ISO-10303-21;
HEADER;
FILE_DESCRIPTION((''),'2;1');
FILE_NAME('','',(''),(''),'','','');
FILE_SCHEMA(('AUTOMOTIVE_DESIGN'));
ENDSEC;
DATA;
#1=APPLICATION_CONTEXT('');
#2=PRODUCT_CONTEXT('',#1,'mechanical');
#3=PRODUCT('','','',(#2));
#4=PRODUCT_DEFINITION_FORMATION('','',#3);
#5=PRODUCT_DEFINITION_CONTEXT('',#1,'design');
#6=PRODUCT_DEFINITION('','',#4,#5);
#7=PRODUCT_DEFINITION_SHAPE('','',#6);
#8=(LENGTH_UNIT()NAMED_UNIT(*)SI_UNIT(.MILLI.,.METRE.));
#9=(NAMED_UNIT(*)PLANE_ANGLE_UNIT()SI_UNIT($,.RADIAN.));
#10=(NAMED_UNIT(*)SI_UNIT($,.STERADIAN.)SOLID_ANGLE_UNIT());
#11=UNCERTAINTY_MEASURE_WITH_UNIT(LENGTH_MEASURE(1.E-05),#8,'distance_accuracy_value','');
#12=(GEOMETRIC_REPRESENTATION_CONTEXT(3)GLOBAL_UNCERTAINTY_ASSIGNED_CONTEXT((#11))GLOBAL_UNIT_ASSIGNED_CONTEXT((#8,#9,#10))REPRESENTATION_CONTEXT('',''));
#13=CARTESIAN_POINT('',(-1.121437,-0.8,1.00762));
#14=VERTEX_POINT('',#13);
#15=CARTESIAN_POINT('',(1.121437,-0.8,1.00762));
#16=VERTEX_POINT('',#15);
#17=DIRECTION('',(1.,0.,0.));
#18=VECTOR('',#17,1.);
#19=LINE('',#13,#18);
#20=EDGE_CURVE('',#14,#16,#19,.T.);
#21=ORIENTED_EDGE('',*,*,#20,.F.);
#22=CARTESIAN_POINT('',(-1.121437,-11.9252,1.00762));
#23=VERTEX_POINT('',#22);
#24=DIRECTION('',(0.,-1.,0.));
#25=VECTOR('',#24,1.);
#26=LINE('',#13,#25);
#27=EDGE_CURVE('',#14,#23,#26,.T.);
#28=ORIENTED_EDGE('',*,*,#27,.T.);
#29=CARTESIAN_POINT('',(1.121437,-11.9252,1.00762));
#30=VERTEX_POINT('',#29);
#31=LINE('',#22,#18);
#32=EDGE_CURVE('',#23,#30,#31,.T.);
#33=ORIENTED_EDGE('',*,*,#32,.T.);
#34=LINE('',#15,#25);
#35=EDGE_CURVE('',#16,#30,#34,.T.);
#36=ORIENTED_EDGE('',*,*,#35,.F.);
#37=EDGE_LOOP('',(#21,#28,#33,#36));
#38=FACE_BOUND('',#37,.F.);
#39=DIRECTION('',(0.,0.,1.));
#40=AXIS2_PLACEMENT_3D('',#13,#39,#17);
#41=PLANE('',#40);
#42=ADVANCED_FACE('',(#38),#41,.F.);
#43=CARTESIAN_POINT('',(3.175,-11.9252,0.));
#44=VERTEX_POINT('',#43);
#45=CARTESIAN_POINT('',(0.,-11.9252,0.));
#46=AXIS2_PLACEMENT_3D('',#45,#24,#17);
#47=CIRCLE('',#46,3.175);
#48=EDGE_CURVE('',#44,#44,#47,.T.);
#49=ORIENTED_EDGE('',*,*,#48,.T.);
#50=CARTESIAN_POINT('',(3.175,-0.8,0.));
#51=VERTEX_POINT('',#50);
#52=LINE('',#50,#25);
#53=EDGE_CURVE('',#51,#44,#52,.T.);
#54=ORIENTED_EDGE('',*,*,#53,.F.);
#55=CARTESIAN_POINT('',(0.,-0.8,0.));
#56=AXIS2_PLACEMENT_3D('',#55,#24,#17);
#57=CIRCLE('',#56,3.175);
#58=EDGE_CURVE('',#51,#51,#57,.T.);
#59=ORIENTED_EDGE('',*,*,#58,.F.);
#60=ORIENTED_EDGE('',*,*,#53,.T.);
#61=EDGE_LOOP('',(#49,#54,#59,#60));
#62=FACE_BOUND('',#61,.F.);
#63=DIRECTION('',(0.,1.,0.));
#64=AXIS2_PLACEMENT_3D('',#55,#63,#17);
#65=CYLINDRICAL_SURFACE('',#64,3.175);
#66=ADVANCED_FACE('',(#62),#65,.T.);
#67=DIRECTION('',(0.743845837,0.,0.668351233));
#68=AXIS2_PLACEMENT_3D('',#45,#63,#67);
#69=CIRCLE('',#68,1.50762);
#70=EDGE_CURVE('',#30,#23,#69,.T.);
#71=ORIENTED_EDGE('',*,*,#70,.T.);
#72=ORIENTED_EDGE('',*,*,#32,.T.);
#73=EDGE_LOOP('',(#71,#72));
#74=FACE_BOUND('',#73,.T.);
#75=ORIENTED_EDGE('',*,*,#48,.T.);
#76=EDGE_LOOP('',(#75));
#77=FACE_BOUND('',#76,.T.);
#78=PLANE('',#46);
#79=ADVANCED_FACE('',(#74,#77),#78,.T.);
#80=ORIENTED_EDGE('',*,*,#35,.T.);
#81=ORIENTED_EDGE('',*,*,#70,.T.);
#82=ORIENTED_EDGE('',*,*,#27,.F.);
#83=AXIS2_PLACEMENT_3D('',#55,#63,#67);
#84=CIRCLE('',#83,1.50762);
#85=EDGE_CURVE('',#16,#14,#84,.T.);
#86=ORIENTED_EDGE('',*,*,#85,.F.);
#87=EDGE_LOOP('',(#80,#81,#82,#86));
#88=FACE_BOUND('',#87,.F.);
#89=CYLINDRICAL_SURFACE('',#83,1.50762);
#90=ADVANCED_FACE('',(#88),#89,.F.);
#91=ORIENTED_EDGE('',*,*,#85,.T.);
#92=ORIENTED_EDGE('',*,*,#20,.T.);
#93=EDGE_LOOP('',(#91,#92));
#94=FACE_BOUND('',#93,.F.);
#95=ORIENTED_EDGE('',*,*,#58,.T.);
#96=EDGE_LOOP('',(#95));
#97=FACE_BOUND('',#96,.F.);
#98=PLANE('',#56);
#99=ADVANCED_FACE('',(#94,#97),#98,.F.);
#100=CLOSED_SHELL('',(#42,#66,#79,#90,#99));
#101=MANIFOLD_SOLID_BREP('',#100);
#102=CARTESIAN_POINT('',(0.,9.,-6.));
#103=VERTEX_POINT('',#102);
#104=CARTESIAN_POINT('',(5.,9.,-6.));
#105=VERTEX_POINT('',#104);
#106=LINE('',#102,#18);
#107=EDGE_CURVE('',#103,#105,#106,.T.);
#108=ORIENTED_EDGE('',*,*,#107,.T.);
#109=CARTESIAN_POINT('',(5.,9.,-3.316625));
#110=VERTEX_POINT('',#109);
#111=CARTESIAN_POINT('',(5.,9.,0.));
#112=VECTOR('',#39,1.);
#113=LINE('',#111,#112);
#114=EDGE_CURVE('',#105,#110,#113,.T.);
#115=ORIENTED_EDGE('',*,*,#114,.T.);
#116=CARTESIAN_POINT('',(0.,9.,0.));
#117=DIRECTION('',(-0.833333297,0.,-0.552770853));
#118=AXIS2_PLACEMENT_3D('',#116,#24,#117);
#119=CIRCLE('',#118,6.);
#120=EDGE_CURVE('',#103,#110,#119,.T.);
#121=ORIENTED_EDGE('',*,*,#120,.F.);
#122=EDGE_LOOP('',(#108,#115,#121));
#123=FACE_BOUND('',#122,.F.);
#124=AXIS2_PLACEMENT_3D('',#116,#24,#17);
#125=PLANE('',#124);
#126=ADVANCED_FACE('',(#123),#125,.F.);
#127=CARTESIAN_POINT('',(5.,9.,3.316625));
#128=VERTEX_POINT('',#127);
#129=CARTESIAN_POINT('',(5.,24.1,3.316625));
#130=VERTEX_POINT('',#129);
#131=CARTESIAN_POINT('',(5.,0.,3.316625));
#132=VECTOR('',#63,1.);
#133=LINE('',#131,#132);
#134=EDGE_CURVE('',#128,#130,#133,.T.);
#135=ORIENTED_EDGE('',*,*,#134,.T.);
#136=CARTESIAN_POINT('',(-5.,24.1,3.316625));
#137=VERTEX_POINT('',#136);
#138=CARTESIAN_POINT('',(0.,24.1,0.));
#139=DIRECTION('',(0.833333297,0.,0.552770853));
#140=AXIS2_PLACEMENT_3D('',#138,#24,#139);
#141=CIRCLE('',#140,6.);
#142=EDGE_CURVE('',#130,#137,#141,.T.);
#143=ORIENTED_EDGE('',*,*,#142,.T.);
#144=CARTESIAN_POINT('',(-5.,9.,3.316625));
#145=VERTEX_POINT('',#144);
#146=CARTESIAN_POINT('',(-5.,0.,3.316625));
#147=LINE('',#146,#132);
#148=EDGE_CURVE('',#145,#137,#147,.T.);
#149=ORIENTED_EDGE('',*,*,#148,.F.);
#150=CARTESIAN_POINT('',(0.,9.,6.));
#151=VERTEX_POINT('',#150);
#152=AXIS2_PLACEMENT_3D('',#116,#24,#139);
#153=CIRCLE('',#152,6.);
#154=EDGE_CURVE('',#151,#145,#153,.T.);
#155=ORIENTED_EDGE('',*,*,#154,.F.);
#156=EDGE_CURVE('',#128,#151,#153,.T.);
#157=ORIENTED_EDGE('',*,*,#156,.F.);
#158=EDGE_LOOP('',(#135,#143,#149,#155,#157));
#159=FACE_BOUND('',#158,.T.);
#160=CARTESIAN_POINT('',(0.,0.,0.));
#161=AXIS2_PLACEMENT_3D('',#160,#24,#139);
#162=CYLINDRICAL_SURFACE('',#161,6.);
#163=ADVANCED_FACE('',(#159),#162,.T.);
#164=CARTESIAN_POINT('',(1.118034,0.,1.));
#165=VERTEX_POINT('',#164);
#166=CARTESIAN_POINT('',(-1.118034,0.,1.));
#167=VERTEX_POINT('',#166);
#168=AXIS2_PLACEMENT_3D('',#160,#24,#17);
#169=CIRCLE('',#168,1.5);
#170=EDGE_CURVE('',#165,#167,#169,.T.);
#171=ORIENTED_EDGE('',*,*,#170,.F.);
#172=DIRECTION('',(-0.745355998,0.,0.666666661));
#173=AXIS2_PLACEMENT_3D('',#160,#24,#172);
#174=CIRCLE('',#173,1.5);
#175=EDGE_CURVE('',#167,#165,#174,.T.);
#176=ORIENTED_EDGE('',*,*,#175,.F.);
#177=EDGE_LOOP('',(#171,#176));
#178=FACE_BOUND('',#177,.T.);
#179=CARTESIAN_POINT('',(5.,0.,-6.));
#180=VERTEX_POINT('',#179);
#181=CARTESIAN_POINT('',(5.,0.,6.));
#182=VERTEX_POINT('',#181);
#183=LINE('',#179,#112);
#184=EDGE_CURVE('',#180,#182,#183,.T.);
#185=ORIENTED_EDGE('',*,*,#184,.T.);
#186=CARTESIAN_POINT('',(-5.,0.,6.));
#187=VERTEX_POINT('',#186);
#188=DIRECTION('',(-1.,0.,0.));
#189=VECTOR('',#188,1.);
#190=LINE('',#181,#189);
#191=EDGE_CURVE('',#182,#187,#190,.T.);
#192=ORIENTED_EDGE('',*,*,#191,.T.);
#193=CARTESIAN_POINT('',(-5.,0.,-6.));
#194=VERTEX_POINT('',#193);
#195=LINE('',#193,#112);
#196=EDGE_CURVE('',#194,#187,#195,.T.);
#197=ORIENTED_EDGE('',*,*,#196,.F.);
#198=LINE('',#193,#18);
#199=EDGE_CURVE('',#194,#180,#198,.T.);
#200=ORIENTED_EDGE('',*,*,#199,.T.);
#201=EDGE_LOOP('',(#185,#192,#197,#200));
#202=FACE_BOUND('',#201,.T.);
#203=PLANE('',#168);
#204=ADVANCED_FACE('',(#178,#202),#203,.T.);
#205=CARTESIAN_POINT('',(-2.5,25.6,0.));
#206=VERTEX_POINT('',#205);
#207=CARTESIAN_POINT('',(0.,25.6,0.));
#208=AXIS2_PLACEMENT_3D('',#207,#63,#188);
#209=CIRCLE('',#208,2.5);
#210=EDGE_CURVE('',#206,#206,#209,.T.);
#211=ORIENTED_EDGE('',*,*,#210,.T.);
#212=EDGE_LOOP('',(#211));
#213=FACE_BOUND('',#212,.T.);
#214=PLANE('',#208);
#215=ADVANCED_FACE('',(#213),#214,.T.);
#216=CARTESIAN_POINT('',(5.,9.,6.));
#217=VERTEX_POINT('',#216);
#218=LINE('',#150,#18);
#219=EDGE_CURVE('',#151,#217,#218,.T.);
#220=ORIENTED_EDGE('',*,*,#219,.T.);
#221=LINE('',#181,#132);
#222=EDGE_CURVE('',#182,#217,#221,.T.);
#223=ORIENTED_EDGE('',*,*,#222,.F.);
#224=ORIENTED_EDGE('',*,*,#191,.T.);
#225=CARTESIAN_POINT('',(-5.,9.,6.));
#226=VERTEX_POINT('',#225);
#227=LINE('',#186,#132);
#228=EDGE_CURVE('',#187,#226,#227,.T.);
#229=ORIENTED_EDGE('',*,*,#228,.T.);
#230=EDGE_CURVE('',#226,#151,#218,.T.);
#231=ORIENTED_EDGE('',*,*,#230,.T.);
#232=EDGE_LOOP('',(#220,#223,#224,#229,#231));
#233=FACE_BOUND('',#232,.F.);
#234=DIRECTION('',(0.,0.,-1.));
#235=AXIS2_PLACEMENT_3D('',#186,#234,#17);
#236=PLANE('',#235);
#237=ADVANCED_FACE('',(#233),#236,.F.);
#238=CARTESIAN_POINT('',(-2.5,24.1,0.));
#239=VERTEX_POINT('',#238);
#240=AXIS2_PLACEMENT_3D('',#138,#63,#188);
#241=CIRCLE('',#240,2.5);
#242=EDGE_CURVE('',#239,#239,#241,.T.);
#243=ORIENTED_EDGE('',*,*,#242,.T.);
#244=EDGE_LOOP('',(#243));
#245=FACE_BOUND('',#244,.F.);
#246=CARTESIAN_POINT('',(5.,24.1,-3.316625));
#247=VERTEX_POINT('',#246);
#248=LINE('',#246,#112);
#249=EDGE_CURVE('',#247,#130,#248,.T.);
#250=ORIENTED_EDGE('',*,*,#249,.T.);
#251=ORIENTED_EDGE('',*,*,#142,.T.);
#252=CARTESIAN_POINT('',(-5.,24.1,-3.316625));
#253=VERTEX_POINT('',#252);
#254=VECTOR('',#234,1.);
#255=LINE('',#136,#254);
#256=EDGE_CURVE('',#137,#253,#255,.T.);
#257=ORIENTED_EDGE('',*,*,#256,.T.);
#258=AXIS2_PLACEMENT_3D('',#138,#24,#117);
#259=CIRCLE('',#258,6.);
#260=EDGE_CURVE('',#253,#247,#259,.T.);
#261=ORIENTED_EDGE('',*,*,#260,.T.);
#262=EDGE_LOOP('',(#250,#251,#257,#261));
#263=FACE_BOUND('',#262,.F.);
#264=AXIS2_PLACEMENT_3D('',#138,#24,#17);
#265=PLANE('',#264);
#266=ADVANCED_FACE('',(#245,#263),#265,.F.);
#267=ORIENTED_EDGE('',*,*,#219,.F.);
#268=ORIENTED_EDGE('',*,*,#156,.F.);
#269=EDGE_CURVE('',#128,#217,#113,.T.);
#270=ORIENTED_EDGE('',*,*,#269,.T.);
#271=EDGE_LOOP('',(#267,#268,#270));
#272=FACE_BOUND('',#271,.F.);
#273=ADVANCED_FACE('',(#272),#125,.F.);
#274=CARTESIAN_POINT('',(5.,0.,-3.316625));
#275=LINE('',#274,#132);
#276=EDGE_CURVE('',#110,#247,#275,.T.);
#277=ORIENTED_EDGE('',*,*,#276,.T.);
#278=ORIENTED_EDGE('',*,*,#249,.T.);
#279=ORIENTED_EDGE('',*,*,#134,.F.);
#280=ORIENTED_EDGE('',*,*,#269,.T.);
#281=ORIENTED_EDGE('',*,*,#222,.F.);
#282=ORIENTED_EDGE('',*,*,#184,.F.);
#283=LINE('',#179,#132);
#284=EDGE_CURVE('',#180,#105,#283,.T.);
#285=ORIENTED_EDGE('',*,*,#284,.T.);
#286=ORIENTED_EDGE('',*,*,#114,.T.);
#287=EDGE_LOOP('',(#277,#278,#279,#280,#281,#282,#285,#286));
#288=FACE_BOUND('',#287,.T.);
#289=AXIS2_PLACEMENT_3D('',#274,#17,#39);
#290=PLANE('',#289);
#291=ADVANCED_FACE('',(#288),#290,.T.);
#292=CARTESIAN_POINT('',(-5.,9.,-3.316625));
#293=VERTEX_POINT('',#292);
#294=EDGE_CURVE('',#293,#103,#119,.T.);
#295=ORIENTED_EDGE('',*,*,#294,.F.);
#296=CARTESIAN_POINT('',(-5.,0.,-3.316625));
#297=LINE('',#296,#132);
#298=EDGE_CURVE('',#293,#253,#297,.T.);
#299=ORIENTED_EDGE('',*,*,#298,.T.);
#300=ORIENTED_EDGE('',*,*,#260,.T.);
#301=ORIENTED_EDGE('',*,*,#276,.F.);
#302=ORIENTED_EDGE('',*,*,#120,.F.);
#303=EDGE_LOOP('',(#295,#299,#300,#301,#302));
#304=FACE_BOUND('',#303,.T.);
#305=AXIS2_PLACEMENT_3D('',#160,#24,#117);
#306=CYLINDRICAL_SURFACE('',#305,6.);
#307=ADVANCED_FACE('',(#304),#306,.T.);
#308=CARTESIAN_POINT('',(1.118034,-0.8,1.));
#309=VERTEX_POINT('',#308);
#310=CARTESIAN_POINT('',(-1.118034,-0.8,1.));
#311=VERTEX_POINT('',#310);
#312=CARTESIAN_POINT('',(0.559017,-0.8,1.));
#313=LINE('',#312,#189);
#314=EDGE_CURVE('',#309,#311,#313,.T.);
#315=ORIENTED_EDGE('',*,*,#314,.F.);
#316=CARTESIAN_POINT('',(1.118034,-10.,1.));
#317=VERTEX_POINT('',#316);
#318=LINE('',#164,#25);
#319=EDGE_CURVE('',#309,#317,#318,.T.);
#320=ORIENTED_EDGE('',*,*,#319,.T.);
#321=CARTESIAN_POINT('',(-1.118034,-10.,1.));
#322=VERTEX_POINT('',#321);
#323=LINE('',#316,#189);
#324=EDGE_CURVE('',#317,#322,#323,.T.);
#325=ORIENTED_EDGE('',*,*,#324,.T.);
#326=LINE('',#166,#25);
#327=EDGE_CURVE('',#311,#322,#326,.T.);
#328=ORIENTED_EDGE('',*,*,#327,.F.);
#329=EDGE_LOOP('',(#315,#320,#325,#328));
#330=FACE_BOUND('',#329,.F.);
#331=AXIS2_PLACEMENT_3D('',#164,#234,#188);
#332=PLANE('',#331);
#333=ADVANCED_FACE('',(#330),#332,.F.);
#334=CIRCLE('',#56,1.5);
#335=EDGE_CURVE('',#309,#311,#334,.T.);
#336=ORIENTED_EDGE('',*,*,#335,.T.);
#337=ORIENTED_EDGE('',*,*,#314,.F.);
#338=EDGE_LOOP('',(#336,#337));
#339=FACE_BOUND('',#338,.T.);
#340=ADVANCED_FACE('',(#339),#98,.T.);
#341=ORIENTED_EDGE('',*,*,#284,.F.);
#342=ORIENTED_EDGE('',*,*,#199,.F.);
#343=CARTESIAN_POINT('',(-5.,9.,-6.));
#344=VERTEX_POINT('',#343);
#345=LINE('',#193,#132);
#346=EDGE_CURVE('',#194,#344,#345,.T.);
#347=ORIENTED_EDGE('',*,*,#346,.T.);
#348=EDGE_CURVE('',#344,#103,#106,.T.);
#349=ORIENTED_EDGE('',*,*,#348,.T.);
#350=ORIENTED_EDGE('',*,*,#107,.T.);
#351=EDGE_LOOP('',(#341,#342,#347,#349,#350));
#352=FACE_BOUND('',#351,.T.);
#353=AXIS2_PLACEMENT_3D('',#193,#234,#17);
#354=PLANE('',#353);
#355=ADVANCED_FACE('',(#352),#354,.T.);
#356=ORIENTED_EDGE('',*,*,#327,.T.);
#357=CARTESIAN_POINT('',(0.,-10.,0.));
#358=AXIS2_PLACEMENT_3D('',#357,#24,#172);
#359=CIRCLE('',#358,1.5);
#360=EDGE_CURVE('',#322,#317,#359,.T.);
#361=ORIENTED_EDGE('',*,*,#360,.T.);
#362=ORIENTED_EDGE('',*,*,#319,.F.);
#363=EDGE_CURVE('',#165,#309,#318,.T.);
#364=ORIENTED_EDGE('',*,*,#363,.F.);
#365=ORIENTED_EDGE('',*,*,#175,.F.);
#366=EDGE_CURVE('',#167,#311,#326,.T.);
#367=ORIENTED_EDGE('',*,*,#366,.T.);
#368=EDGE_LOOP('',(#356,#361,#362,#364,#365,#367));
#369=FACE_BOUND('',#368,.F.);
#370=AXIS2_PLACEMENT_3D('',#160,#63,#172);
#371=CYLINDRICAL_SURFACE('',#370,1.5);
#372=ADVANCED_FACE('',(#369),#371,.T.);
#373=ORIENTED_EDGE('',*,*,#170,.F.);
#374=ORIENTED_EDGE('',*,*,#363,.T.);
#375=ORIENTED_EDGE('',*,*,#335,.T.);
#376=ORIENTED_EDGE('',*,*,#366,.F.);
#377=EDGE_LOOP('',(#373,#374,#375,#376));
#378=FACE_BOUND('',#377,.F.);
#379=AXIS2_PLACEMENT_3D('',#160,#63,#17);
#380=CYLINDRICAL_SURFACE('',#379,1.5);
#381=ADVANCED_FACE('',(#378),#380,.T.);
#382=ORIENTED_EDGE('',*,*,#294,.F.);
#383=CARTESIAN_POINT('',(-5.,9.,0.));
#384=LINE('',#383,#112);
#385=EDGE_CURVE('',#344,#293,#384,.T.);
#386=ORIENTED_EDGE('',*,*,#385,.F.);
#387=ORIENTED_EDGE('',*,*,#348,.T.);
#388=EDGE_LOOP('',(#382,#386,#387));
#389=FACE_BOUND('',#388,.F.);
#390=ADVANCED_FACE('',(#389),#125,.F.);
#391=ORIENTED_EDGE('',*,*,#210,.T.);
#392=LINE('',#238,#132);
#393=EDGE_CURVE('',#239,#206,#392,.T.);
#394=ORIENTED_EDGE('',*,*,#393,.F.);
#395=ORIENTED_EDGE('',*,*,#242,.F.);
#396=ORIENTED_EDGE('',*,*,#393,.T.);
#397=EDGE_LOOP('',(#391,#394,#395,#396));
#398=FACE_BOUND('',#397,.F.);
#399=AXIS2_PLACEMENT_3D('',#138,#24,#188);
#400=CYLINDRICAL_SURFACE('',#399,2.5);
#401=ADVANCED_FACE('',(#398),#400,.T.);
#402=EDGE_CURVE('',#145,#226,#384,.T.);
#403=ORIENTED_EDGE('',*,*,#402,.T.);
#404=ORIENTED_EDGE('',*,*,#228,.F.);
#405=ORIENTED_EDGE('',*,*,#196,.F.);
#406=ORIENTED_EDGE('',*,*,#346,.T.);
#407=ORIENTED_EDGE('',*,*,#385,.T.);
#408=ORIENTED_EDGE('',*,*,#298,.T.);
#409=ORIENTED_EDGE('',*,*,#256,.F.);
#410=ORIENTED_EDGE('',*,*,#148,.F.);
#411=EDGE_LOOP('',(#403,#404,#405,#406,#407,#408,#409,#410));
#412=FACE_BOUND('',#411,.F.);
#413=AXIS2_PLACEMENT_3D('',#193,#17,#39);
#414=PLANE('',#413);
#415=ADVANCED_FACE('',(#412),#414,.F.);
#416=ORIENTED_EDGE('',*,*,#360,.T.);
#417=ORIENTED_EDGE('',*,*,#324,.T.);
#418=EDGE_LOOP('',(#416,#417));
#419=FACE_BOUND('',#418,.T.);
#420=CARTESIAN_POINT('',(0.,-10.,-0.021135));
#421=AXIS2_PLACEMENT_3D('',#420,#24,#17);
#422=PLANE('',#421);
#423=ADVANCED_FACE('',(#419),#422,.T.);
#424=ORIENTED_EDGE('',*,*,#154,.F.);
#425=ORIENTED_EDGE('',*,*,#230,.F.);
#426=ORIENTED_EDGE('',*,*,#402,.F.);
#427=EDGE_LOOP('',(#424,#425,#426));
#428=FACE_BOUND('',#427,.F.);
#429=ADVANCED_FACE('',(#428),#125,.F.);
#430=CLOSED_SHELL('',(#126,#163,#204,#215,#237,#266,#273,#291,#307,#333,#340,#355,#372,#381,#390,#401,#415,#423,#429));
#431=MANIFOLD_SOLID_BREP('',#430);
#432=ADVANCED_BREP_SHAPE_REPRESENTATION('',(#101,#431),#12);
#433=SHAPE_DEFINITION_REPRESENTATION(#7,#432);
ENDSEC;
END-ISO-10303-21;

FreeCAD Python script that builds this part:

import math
import FreeCAD as App
import Part
import Sketcher
from FreeCAD import Vector

doc = App.newDocument("Part")
body = doc.addObject("PartDesign::Body", "Body")

# Sketch on XZ plane
sketch1 = body.newObject("Sketcher::SketchObject", "Sketch")
sketch1.AttachmentSupport = (doc.getObject("XZ_Plane"), [""])
sketch1.MapMode = "FlatFace"
sketch1.addGeometry([
    Part.LineSegment(Vector(5, -3, 0), Vector(5, 3, 0)),
    Part.ArcOfCircle(Part.Circle(Vector(0, 0, 0), Vector(0, 0, 1), 6), math.radians(34), math.radians(146)),
    Part.LineSegment(Vector(-5, 3, 0), Vector(-5, -3, 0)),
    Part.ArcOfCircle(Part.Circle(Vector(0, 0, 0), Vector(0, 0, 1), 6), math.radians(-146), math.radians(-34)),
], False)
sketch1.addConstraint([
    Sketcher.Constraint("Coincident", 0, 2, 1, 1),
    Sketcher.Constraint("Coincident", 1, 2, 2, 1),
    Sketcher.Constraint("Coincident", 2, 2, 3, 1),
    Sketcher.Constraint("Coincident", 3, 2, 0, 1),
    Sketcher.Constraint("Vertical", 0),
    Sketcher.Constraint("Vertical", 2),
    Sketcher.Constraint("Coincident", 1, 3, -1, 1),
    Sketcher.Constraint("Coincident", 3, 3, -1, 1),
    Sketcher.Constraint("Equal", 1, 3),
    Sketcher.Constraint("Horizontal", 0, 2, 1, 2),
    Sketcher.Constraint("Radius", 1, 6.0),
    Sketcher.Constraint("DistanceX", -1, 1, 0, 2, 5.0),
])
pad1 = body.newObject("PartDesign::Pad", "Pad")
pad1.Profile = sketch1
pad1.Length = 24.1
pad1.Reversed = True

# Sketch on XZ plane
sketch2 = body.newObject("Sketcher::SketchObject", "Sketch001")
sketch2.AttachmentSupport = (doc.getObject("XZ_Plane"), [""])
sketch2.MapMode = "FlatFace"
sketch2.addGeometry([
    Part.LineSegment(Vector(-5, 6, 0), Vector(-5, -6, 0)),
    Part.LineSegment(Vector(-5, -6, 0), Vector(5, -6, 0)),
    Part.LineSegment(Vector(5, -6, 0), Vector(5, 6, 0)),
    Part.LineSegment(Vector(5, 6, 0), Vector(-5, 6, 0)),
], False)
sketch2.addConstraint([
    Sketcher.Constraint("Coincident", 0, 2, 1, 1),
    Sketcher.Constraint("Coincident", 1, 2, 2, 1),
    Sketcher.Constraint("Coincident", 2, 2, 3, 1),
    Sketcher.Constraint("Coincident", 3, 2, 0, 1),
    Sketcher.Constraint("Vertical", 0),
    Sketcher.Constraint("Horizontal", 1),
    Sketcher.Constraint("Vertical", 2),
    Sketcher.Constraint("Horizontal", 3),
    Sketcher.Constraint("Symmetric", 0, 2, 2, 2, -1, 1),
    Sketcher.Constraint("DistanceX", 1, 1, 1, 2, 10.0),
    Sketcher.Constraint("DistanceY", 0, 2, 0, 1, 12.0),
])
pad2 = body.newObject("PartDesign::Pad", "Pad001")
pad2.Profile = sketch2
pad2.Length = 9
pad2.Reversed = True

# Sketch on XZ plane
sketch3 = body.newObject("Sketcher::SketchObject", "Sketch002")
sketch3.AttachmentSupport = (doc.getObject("XZ_Plane"), [""])
sketch3.MapMode = "FlatFace"
sketch3.addGeometry([
    Part.LineSegment(Vector(1.1, 1, 0), Vector(-1.1, 1, 0)),
    Part.ArcOfCircle(Part.Circle(Vector(0, 0, 0), Vector(0, 0, 1), 1.5), math.radians(138), math.radians(402)),
], False)
sketch3.addConstraint([
    Sketcher.Constraint("Coincident", 0, 1, 1, 2),
    Sketcher.Constraint("Coincident", 1, 1, 0, 2),
    Sketcher.Constraint("Horizontal", 0),
    Sketcher.Constraint("Coincident", 1, 3, -1, 1),
    Sketcher.Constraint("Radius", 1, 1.5),
    Sketcher.Constraint("DistanceY", -1, 1, 0, 1, 1.0),
])
pad3 = body.newObject("PartDesign::Pad", "Pad002")
pad3.Profile = sketch3
pad3.Length = 10

# Sketch on XZ plane
sketch4 = body.newObject("Sketcher::SketchObject", "Sketch003")
sketch4.AttachmentSupport = (doc.getObject("XZ_Plane"), [""])
sketch4.MapMode = "FlatFace"
sketch4.AttachmentOffset = App.Placement(Vector(0, 0, -24.1), App.Rotation())
sketch4.addGeometry(Part.Circle(Vector(0, 0, 0), Vector(0, 0, 1), 2.5), False)
sketch4.addConstraint([
    Sketcher.Constraint("Coincident", 0, 3, -1, 1),
    Sketcher.Constraint("Diameter", 0, 5.0),
])
pad4 = body.newObject("PartDesign::Pad", "Pad003")
pad4.Profile = sketch4
pad4.Length = 1.5
pad4.Reversed = True

# Sketch on XZ plane
sketch5 = body.newObject("Sketcher::SketchObject", "Sketch004")
sketch5.AttachmentSupport = (doc.getObject("XZ_Plane"), [""])
sketch5.MapMode = "FlatFace"
sketch5.addGeometry(Part.Circle(Vector(0, 0, 0), Vector(0, 0, 1), 1.5), False)
sketch5.addConstraint([
    Sketcher.Constraint("Coincident", 0, 3, -1, 1),
    Sketcher.Constraint("Diameter", 0, 3.0),
])
pad5 = body.newObject("PartDesign::Pad", "Pad004")
pad5.Profile = sketch5
pad5.Length = 0.8
body2 = doc.addObject("PartDesign::Body", "Body001")

# Sketch on XZ plane
sketch6 = body2.newObject("Sketcher::SketchObject", "Sketch005")
sketch6.AttachmentSupport = (doc.getObject("XZ_Plane001"), [""])
sketch6.MapMode = "FlatFace"
sketch6.AttachmentOffset = App.Placement(Vector(0, 0, 0.8), App.Rotation())
sketch6.addGeometry([
    Part.Circle(Vector(0, 0, 0), Vector(0, 0, 1), 3.2),
    Part.LineSegment(Vector(-1.1, 1, 0), Vector(1.1, 1, 0)),
    Part.ArcOfCircle(Part.Circle(Vector(0, 0, 0), Vector(0, 0, 1), 1.5), math.radians(138), math.radians(402)),
], False)
sketch6.addConstraint([
    Sketcher.Constraint("Coincident", 1, 1, 2, 1),
    Sketcher.Constraint("Coincident", 2, 2, 1, 2),
    Sketcher.Constraint("Horizontal", 1),
    Sketcher.Constraint("Coincident", 0, 3, -1, 1),
    Sketcher.Constraint("Coincident", 2, 3, -1, 1),
    Sketcher.Constraint("Diameter", 0, 6.35),
    Sketcher.Constraint("Radius", 2, 1.50762),
    Sketcher.Constraint("DistanceX", 1, 1, 1, 2, 2.242874),
])
pad6 = body2.newObject("PartDesign::Pad", "Pad005")
pad6.Profile = sketch6
pad6.Length = 11.1252

doc.recompute()
